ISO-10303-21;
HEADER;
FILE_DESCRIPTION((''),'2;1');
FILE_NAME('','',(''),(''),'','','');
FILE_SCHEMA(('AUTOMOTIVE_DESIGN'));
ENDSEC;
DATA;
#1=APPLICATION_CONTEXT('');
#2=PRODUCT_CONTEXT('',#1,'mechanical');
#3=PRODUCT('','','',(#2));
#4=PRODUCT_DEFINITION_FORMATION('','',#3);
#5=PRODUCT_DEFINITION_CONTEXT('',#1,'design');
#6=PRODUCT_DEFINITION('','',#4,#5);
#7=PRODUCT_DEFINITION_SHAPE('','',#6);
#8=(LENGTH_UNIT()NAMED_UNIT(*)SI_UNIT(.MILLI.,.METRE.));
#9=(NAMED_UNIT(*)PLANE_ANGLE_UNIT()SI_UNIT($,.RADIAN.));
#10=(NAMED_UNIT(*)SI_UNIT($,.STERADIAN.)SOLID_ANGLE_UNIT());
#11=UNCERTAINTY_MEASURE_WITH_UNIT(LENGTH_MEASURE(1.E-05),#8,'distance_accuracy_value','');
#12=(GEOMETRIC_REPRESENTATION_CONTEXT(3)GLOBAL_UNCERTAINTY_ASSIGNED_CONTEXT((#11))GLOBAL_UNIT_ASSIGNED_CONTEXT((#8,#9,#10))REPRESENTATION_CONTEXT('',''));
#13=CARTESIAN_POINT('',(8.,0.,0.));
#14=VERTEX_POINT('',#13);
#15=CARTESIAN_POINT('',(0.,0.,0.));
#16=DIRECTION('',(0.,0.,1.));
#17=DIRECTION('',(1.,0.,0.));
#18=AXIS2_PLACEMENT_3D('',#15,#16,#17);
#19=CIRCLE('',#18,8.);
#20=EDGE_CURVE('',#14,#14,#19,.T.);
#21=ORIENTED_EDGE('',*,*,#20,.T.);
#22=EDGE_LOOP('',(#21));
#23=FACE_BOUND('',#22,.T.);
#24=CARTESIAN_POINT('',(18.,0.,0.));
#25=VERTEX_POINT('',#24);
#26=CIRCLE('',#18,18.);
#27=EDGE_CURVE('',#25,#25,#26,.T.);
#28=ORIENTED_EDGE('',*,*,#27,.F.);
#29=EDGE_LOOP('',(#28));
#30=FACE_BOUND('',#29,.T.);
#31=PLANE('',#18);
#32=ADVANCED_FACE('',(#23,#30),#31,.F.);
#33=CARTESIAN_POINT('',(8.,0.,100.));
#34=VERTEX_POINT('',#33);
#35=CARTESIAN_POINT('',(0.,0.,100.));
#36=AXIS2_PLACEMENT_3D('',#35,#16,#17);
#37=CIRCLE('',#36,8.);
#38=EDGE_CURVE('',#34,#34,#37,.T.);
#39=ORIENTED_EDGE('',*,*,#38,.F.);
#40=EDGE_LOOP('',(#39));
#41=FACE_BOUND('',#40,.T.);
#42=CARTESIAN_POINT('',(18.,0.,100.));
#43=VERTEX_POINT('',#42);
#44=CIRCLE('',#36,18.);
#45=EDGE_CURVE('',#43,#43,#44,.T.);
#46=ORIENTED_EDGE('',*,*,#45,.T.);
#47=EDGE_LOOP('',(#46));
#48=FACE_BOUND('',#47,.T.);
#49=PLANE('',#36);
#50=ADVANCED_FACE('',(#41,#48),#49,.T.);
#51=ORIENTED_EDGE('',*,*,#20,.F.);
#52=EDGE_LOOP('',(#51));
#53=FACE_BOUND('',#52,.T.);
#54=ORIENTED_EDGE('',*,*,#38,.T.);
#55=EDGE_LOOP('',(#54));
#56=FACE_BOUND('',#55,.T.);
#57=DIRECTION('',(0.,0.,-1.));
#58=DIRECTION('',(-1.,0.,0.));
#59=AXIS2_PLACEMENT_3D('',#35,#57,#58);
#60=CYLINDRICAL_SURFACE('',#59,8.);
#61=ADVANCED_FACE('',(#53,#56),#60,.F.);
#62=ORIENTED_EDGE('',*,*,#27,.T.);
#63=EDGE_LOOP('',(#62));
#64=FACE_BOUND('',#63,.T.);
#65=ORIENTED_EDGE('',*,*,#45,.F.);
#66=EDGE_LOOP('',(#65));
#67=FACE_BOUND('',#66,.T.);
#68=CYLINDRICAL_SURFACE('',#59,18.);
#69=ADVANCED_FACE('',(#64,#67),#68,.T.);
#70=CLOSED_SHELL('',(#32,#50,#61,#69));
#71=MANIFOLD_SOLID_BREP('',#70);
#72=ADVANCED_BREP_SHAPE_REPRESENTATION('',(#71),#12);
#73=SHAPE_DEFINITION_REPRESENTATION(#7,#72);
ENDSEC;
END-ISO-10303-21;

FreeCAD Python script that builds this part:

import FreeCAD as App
import Part
import Sketcher
from FreeCAD import Vector

doc = App.newDocument("Part")
params = doc.addObject("Spreadsheet::Sheet", "Params")
for row, (alias, value) in enumerate([
    ("sketch1_diameter", "36 mm"),
    ("sketch1_diameter2", "16 mm"),
    ("pad1_length", "100 mm"),
], start=1):
    params.set(f"A{row}", alias)
    params.set(f"B{row}", "=" + value)
    params.setAlias(f"B{row}", alias)

body = doc.addObject("PartDesign::Body", "Body")

# Sketch on XY plane
sketch1 = body.newObject("Sketcher::SketchObject", "Sketch")
sketch1.AttachmentSupport = (doc.getObject("XY_Plane"), [""])
sketch1.MapMode = "FlatFace"
sketch1.addGeometry(Part.Circle(Vector(0, 0, 0), Vector(0, 0, 1), 18), False)
sketch1.addGeometry(Part.Circle(Vector(0, 0, 0), Vector(0, 0, 1), 8), False)
sketch1.addConstraint(Sketcher.Constraint("Coincident", 0, 3, -1, 1))
sketch1.addConstraint(Sketcher.Constraint("Coincident", 1, 3, -1, 1))
sketch1.addConstraint(Sketcher.Constraint("Diameter", 0, 36.0))
sketch1.addConstraint(Sketcher.Constraint("Diameter", 1, 16.0))
sketch1.setExpression("Constraints[2]", "Params.sketch1_diameter")
sketch1.setExpression("Constraints[3]", "Params.sketch1_diameter2")
pad1 = body.newObject("PartDesign::Pad", "Pad")
pad1.Profile = sketch1
pad1.setExpression("Length", "Params.pad1_length")

doc.recompute()
